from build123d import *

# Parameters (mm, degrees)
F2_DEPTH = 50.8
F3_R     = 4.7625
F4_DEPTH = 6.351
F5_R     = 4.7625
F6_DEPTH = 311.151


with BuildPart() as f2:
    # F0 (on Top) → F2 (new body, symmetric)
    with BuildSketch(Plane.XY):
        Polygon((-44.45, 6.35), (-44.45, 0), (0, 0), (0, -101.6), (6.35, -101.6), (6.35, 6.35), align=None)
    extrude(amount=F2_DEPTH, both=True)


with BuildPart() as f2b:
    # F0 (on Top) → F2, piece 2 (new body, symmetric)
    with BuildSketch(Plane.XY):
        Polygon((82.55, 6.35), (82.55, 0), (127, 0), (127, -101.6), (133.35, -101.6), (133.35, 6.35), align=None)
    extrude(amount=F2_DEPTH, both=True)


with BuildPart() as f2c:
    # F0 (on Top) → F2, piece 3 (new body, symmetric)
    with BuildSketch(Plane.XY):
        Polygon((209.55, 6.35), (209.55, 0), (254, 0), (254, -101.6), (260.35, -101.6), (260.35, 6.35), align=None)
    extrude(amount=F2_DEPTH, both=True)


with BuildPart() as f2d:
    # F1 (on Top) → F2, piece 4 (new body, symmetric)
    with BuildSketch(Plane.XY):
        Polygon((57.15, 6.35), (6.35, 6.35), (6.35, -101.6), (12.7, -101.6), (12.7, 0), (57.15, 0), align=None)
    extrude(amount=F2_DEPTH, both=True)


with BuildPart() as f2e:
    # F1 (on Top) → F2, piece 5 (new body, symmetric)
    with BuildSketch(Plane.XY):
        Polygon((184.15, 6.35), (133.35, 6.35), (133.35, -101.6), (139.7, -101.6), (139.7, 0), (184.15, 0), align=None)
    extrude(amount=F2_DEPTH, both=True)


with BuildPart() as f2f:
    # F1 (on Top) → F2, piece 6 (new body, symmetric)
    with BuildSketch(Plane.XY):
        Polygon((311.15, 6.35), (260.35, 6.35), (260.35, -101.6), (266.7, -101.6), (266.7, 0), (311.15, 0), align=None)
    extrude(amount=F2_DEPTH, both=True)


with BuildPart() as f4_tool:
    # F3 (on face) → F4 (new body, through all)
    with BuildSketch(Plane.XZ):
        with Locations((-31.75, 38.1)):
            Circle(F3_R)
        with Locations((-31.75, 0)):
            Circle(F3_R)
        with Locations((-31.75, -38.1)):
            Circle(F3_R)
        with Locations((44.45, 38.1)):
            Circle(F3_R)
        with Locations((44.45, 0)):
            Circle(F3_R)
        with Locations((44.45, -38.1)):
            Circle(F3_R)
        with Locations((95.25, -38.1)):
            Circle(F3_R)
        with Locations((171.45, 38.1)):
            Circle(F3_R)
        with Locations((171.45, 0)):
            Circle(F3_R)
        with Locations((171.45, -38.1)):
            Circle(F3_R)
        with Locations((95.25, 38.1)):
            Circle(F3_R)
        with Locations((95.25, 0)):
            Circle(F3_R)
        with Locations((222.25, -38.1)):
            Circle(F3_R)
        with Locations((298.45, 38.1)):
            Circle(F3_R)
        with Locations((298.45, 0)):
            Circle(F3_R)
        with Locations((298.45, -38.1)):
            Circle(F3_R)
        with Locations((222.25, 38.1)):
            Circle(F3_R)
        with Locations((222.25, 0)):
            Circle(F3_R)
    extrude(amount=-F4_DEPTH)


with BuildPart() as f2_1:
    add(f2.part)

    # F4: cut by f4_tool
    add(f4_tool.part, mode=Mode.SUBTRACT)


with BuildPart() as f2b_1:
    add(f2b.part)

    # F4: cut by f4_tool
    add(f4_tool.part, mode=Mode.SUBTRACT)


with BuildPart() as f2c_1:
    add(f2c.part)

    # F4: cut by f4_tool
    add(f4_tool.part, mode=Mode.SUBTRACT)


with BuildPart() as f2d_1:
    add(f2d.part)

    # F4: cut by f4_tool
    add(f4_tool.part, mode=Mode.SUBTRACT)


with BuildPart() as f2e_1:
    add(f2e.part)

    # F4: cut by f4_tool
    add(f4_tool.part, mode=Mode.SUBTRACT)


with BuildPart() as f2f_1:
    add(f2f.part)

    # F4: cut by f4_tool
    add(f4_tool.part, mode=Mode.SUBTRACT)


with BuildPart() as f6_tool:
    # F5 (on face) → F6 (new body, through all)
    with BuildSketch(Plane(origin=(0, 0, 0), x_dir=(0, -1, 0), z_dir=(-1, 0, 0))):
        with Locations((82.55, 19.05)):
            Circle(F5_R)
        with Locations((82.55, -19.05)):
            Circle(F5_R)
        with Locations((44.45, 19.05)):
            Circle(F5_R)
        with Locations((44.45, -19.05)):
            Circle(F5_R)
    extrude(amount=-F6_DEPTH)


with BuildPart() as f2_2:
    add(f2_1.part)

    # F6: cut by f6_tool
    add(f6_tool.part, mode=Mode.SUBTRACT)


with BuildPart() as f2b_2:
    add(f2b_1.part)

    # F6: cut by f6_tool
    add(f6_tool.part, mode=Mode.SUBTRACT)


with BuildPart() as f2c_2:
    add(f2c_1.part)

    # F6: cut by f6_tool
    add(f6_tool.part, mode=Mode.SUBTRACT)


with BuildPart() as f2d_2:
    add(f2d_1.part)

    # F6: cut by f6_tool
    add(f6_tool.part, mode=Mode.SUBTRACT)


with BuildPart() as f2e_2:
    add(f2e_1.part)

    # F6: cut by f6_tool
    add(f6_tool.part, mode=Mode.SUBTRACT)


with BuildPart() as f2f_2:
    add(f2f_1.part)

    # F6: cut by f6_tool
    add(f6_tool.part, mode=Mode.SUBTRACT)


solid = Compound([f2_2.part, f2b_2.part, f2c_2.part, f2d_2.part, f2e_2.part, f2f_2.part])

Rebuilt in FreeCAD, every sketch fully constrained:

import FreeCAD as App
import Part
import Sketcher
from FreeCAD import Vector
Q = App.Units.Quantity

doc = App.newDocument("Part")
body = doc.addObject("PartDesign::Body", "Body")

# Sketch on XY plane
sketch1 = body.newObject("Sketcher::SketchObject", "Sketch")
sketch1.AttachmentSupport = (doc.getObject("XY_Plane"), [""])
sketch1.MapMode = "FlatFace"
sketch1.addGeometry(Part.LineSegment(Vector(-44.45, 6.35, 0), Vector(-44.45, 0, 0)), False)
sketch1.addGeometry(Part.LineSegment(Vector(-44.45, 0, 0), Vector(0, 0, 0)), False)
sketch1.addGeometry(Part.LineSegment(Vector(0, 0, 0), Vector(0, -101.6, 0)), False)
sketch1.addGeometry(Part.LineSegment(Vector(0, -101.6, 0), Vector(6.35, -101.6, 0)), False)
sketch1.addGeometry(Part.LineSegment(Vector(6.35, -101.6, 0), Vector(6.35, 6.35, 0)), False)
sketch1.addGeometry(Part.LineSegment(Vector(6.35, 6.35, 0), Vector(-44.45, 6.35, 0)), False)
sketch1.addConstraint(Sketcher.Constraint("Coincident", 0, 2, 1, 1))
sketch1.addConstraint(Sketcher.Constraint("Coincident", 1, 2, 2, 1))
sketch1.addConstraint(Sketcher.Constraint("Coincident", 2, 2, 3, 1))
sketch1.addConstraint(Sketcher.Constraint("Coincident", 3, 2, 4, 1))
sketch1.addConstraint(Sketcher.Constraint("Coincident", 4, 2, 5, 1))
sketch1.addConstraint(Sketcher.Constraint("Coincident", 5, 2, 0, 1))
sketch1.addConstraint(Sketcher.Constraint("Vertical", 0))
sketch1.addConstraint(Sketcher.Constraint("Horizontal", 1))
sketch1.addConstraint(Sketcher.Constraint("Vertical", 2))
sketch1.addConstraint(Sketcher.Constraint("Horizontal", 3))
sketch1.addConstraint(Sketcher.Constraint("Vertical", 4))
sketch1.addConstraint(Sketcher.Constraint("Horizontal", 5))
sketch1.addConstraint(Sketcher.Constraint("Coincident", 1, 2, -1, 1))
sketch1.addConstraint(Sketcher.Constraint("Equal", 3, 0))
sketch1.addConstraint(Sketcher.Constraint("DistanceX", 5, 2, 5, 1, Q("2 in")))
sketch1.addConstraint(Sketcher.Constraint("DistanceY", 2, 2, 2, 1, Q("4 in")))
sketch1.addConstraint(Sketcher.Constraint("DistanceX", 1, 1, 1, 2, Q("1.75 in")))
pad1 = body.newObject("PartDesign::Pad", "Pad")
pad1.Profile = sketch1
pad1.Length = Q("4 in")
pad1.Midplane = True
body2 = doc.addObject("PartDesign::Body", "Body001")

# Sketch on XY plane
sketch2 = body2.newObject("Sketcher::SketchObject", "Sketch001")
sketch2.AttachmentSupport = (doc.getObject("XY_Plane001"), [""])
sketch2.MapMode = "FlatFace"
sketch2.addGeometry(Part.LineSegment(Vector(82.55, 6.35, 0), Vector(82.55, 0, 0)), False)
sketch2.addGeometry(Part.LineSegment(Vector(82.55, 0, 0), Vector(127, 0, 0)), False)
sketch2.addGeometry(Part.LineSegment(Vector(127, 0, 0), Vector(127, -101.6, 0)), False)
sketch2.addGeometry(Part.LineSegment(Vector(127, -101.6, 0), Vector(133.35, -101.6, 0)), False)
sketch2.addGeometry(Part.LineSegment(Vector(133.35, -101.6, 0), Vector(133.35, 6.35, 0)), False)
sketch2.addGeometry(Part.LineSegment(Vector(133.35, 6.35, 0), Vector(82.55, 6.35, 0)), False)
sketch2.addConstraint(Sketcher.Constraint("Coincident", 0, 2, 1, 1))
sketch2.addConstraint(Sketcher.Constraint("Coincident", 1, 2, 2, 1))
sketch2.addConstraint(Sketcher.Constraint("Coincident", 2, 2, 3, 1))
sketch2.addConstraint(Sketcher.Constraint("Coincident", 3, 2, 4, 1))
sketch2.addConstraint(Sketcher.Constraint("Coincident", 4, 2, 5, 1))
sketch2.addConstraint(Sketcher.Constraint("Coincident", 5, 2, 0, 1))
sketch2.addConstraint(Sketcher.Constraint("Vertical", 0))
sketch2.addConstraint(Sketcher.Constraint("Horizontal", 1))
sketch2.addConstraint(Sketcher.Constraint("Vertical", 2))
sketch2.addConstraint(Sketcher.Constraint("Horizontal", 3))
sketch2.addConstraint(Sketcher.Constraint("Vertical", 4))
sketch2.addConstraint(Sketcher.Constraint("Horizontal", 5))
sketch2.addConstraint(Sketcher.Constraint("PointOnObject", 0, 2, -1))
sketch2.addConstraint(Sketcher.Constraint("Equal", 3, 0))
sketch2.addConstraint(Sketcher.Constraint("DistanceX", 5, 2, 5, 1, Q("2 in")))
sketch2.addConstraint(Sketcher.Constraint("DistanceY", 2, 2, 2, 1, Q("4 in")))
sketch2.addConstraint(Sketcher.Constraint("DistanceX", -1, 1, 1, 2, Q("5 in")))
sketch2.addConstraint(Sketcher.Constraint("DistanceX", 1, 1, 1, 2, Q("1.75 in")))
pad2 = body2.newObject("PartDesign::Pad", "Pad001")
pad2.Profile = sketch2
pad2.Length = Q("4 in")
pad2.Midplane = True
body3 = doc.addObject("PartDesign::Body", "Body002")

# Sketch on XY plane
sketch3 = body3.newObject("Sketcher::SketchObject", "Sketch002")
sketch3.AttachmentSupport = (doc.getObject("XY_Plane002"), [""])
sketch3.MapMode = "FlatFace"
sketch3.addGeometry(Part.LineSegment(Vector(209.55, 6.35, 0), Vector(209.55, 0, 0)), False)
sketch3.addGeometry(Part.LineSegment(Vector(209.55, 0, 0), Vector(254, 0, 0)), False)
sketch3.addGeometry(Part.LineSegment(Vector(254, 0, 0), Vector(254, -101.6, 0)), False)
sketch3.addGeometry(Part.LineSegment(Vector(254, -101.6, 0), Vector(260.35, -101.6, 0)), False)
sketch3.addGeometry(Part.LineSegment(Vector(260.35, -101.6, 0), Vector(260.35, 6.35, 0)), False)
sketch3.addGeometry(Part.LineSegment(Vector(260.35, 6.35, 0), Vector(209.55, 6.35, 0)), False)
sketch3.addConstraint(Sketcher.Constraint("Coincident", 0, 2, 1, 1))
sketch3.addConstraint(Sketcher.Constraint("Coincident", 1, 2, 2, 1))
sketch3.addConstraint(Sketcher.Constraint("Coincident", 2, 2, 3, 1))
sketch3.addConstraint(Sketcher.Constraint("Coincident", 3, 2, 4, 1))
sketch3.addConstraint(Sketcher.Constraint("Coincident", 4, 2, 5, 1))
sketch3.addConstraint(Sketcher.Constraint("Coincident", 5, 2, 0, 1))
sketch3.addConstraint(Sketcher.Constraint("Vertical", 0))
sketch3.addConstraint(Sketcher.Constraint("Horizontal", 1))
sketch3.addConstraint(Sketcher.Constraint("Vertical", 2))
sketch3.addConstraint(Sketcher.Constraint("Horizontal", 3))
sketch3.addConstraint(Sketcher.Constraint("Vertical", 4))
sketch3.addConstraint(Sketcher.Constraint("Horizontal", 5))
sketch3.addConstraint(Sketcher.Constraint("PointOnObject", 0, 2, -1))
sketch3.addConstraint(Sketcher.Constraint("Equal", 3, 0))
sketch3.addConstraint(Sketcher.Constraint("DistanceX", 5, 2, 5, 1, Q("2 in")))
sketch3.addConstraint(Sketcher.Constraint("DistanceY", 2, 2, 2, 1, Q("4 in")))
sketch3.addConstraint(Sketcher.Constraint("DistanceX", -1, 1, 1, 2, Q("10 in")))
sketch3.addConstraint(Sketcher.Constraint("DistanceX", 1, 1, 1, 2, Q("1.75 in")))
pad3 = body3.newObject("PartDesign::Pad", "Pad002")
pad3.Profile = sketch3
pad3.Length = Q("4 in")
pad3.Midplane = True
body4 = doc.addObject("PartDesign::Body", "Body003")

# Sketch on XY plane
sketch4 = body4.newObject("Sketcher::SketchObject", "Sketch003")
sketch4.AttachmentSupport = (doc.getObject("XY_Plane003"), [""])
sketch4.MapMode = "FlatFace"
sketch4.addGeometry(Part.LineSegment(Vector(57.15, 6.35, 0), Vector(6.35, 6.35, 0)), False)
sketch4.addGeometry(Part.LineSegment(Vector(6.35, 6.35, 0), Vector(6.35, -101.6, 0)), False)
sketch4.addGeometry(Part.LineSegment(Vector(6.35, -101.6, 0), Vector(12.7, -101.6, 0)), False)
sketch4.addGeometry(Part.LineSegment(Vector(12.7, -101.6, 0), Vector(12.7, 0, 0)), False)
sketch4.addGeometry(Part.LineSegment(Vector(12.7, 0, 0), Vector(57.15, 0, 0)), False)
sketch4.addGeometry(Part.LineSegment(Vector(57.15, 0, 0), Vector(57.15, 6.35, 0)), False)
sketch4.addConstraint(Sketcher.Constraint("Coincident", 0, 2, 1, 1))
sketch4.addConstraint(Sketcher.Constraint("Coincident", 1, 2, 2, 1))
sketch4.addConstraint(Sketcher.Constraint("Coincident", 2, 2, 3, 1))
sketch4.addConstraint(Sketcher.Constraint("Coincident", 3, 2, 4, 1))
sketch4.addConstraint(Sketcher.Constraint("Coincident", 4, 2, 5, 1))
sketch4.addConstraint(Sketcher.Constraint("Coincident", 5, 2, 0, 1))
sketch4.addConstraint(Sketcher.Constraint("Horizontal", 0))
sketch4.addConstraint(Sketcher.Constraint("Vertical", 1))
sketch4.addConstraint(Sketcher.Constraint("Horizontal", 2))
sketch4.addConstraint(Sketcher.Constraint("Vertical", 3))
sketch4.addConstraint(Sketcher.Constraint("Horizontal", 4))
sketch4.addConstraint(Sketcher.Constraint("Vertical", 5))
sketch4.addConstraint(Sketcher.Constraint("PointOnObject", 3, 2, -1))
sketch4.addConstraint(Sketcher.Constraint("Equal", 2, 5))
sketch4.addConstraint(Sketcher.Constraint("DistanceX", 0, 2, 0, 1, Q("2 in")))
sketch4.addConstraint(Sketcher.Constraint("DistanceY", 3, 1, 3, 2, Q("4 in")))
sketch4.addConstraint(Sketcher.Constraint("DistanceX", 2, 1, 2, 2, Q("0.25 in")))
sketch4.addConstraint(Sketcher.Constraint("DistanceX", -1, 1, 2, 2, Q("0.5 in")))
pad4 = body4.newObject("PartDesign::Pad", "Pad003")
pad4.Profile = sketch4
pad4.Length = Q("4 in")
pad4.Midplane = True
body5 = doc.addObject("PartDesign::Body", "Body004")

# Sketch on XY plane
sketch5 = body5.newObject("Sketcher::SketchObject", "Sketch004")
sketch5.AttachmentSupport = (doc.getObject("XY_Plane004"), [""])
sketch5.MapMode = "FlatFace"
sketch5.addGeometry(Part.LineSegment(Vector(184.15, 6.35, 0), Vector(133.35, 6.35, 0)), False)
sketch5.addGeometry(Part.LineSegment(Vector(133.35, 6.35, 0), Vector(133.35, -101.6, 0)), False)
sketch5.addGeometry(Part.LineSegment(Vector(133.35, -101.6, 0), Vector(139.7, -101.6, 0)), False)
sketch5.addGeometry(Part.LineSegment(Vector(139.7, -101.6, 0), Vector(139.7, 0, 0)), False)
sketch5.addGeometry(Part.LineSegment(Vector(139.7, 0, 0), Vector(184.15, 0, 0)), False)
sketch5.addGeometry(Part.LineSegment(Vector(184.15, 0, 0), Vector(184.15, 6.35, 0)), False)
sketch5.addConstraint(Sketcher.Constraint("Coincident", 0, 2, 1, 1))
sketch5.addConstraint(Sketcher.Constraint("Coincident", 1, 2, 2, 1))
sketch5.addConstraint(Sketcher.Constraint("Coincident", 2, 2, 3, 1))
sketch5.addConstraint(Sketcher.Constraint("Coincident", 3, 2, 4, 1))
sketch5.addConstraint(Sketcher.Constraint("Coincident", 4, 2, 5, 1))
sketch5.addConstraint(Sketcher.Constraint("Coincident", 5, 2, 0, 1))
sketch5.addConstraint(Sketcher.Constraint("Horizontal", 0))
sketch5.addConstraint(Sketcher.Constraint("Vertical", 1))
sketch5.addConstraint(Sketcher.Constraint("Horizontal", 2))
sketch5.addConstraint(Sketcher.Constraint("Vertical", 3))
sketch5.addConstraint(Sketcher.Constraint("Horizontal", 4))
sketch5.addConstraint(Sketcher.Constraint("Vertical", 5))
sketch5.addConstraint(Sketcher.Constraint("PointOnObject", 3, 2, -1))
sketch5.addConstraint(Sketcher.Constraint("Equal", 2, 5))
sketch5.addConstraint(Sketcher.Constraint("DistanceX", 0, 2, 0, 1, Q("2 in")))
sketch5.addConstraint(Sketcher.Constraint("DistanceY", 3, 1, 3, 2, Q("4 in")))
sketch5.addConstraint(Sketcher.Constraint("DistanceX", 2, 1, 2, 2, Q("0.25 in")))
sketch5.addConstraint(Sketcher.Constraint("DistanceX", -1, 1, 2, 2, Q("5.5 in")))
pad5 = body5.newObject("PartDesign::Pad", "Pad004")
pad5.Profile = sketch5
pad5.Length = Q("4 in")
pad5.Midplane = True
body6 = doc.addObject("PartDesign::Body", "Body005")

# Sketch on XY plane
sketch6 = body6.newObject("Sketcher::SketchObject", "Sketch005")
sketch6.AttachmentSupport = (doc.getObject("XY_Plane005"), [""])
sketch6.MapMode = "FlatFace"
sketch6.addGeometry(Part.LineSegment(Vector(311.15, 6.35, 0), Vector(260.35, 6.35, 0)), False)
sketch6.addGeometry(Part.LineSegment(Vector(260.35, 6.35, 0), Vector(260.35, -101.6, 0)), False)
sketch6.addGeometry(Part.LineSegment(Vector(260.35, -101.6, 0), Vector(266.7, -101.6, 0)), False)
sketch6.addGeometry(Part.LineSegment(Vector(266.7, -101.6, 0), Vector(266.7, 0, 0)), False)
sketch6.addGeometry(Part.LineSegment(Vector(266.7, 0, 0), Vector(311.15, 0, 0)), False)
sketch6.addGeometry(Part.LineSegment(Vector(311.15, 0, 0), Vector(311.15, 6.35, 0)), False)
sketch6.addConstraint(Sketcher.Constraint("Coincident", 0, 2, 1, 1))
sketch6.addConstraint(Sketcher.Constraint("Coincident", 1, 2, 2, 1))
sketch6.addConstraint(Sketcher.Constraint("Coincident", 2, 2, 3, 1))
sketch6.addConstraint(Sketcher.Constraint("Coincident", 3, 2, 4, 1))
sketch6.addConstraint(Sketcher.Constraint("Coincident", 4, 2, 5, 1))
sketch6.addConstraint(Sketcher.Constraint("Coincident", 5, 2, 0, 1))
sketch6.addConstraint(Sketcher.Constraint("Horizontal", 0))
sketch6.addConstraint(Sketcher.Constraint("Vertical", 1))
sketch6.addConstraint(Sketcher.Constraint("Horizontal", 2))
sketch6.addConstraint(Sketcher.Constraint("Vertical", 3))
sketch6.addConstraint(Sketcher.Constraint("Horizontal", 4))
sketch6.addConstraint(Sketcher.Constraint("Vertical", 5))
sketch6.addConstraint(Sketcher.Constraint("PointOnObject", 3, 2, -1))
sketch6.addConstraint(Sketcher.Constraint("Equal", 2, 5))
sketch6.addConstraint(Sketcher.Constraint("DistanceX", 0, 2, 0, 1, Q("2 in")))
sketch6.addConstraint(Sketcher.Constraint("DistanceY", 3, 1, 3, 2, Q("4 in")))
sketch6.addConstraint(Sketcher.Constraint("DistanceX", 2, 1, 2, 2, Q("0.25 in")))
sketch6.addConstraint(Sketcher.Constraint("DistanceX", -1, 1, 2, 2, Q("10.5 in")))
pad6 = body6.newObject("PartDesign::Pad", "Pad005")
pad6.Profile = sketch6
pad6.Length = Q("4 in")
pad6.Midplane = True
body7 = doc.addObject("PartDesign::Body", "Body006")
body7.AllowCompound = True

# Sketch on XZ plane
sketch7 = body7.newObject("Sketcher::SketchObject", "Sketch006")
sketch7.AttachmentSupport = (doc.getObject("XZ_Plane006"), [""])
sketch7.MapMode = "FlatFace"
sketch7.addGeometry(Part.Circle(Vector(-31.75, 38.1, 0), Vector(0, 0, 1), 4.7625), False)
sketch7.addGeometry(Part.Circle(Vector(-31.75, 0, 0), Vector(0, 0, 1), 4.7625), False)
sketch7.addGeometry(Part.Circle(Vector(-31.75, -38.1, 0), Vector(0, 0, 1), 4.7625), False)
sketch7.addGeometry(Part.Circle(Vector(44.45, 38.1, 0), Vector(0, 0, 1), 4.7625), False)
sketch7.addGeometry(Part.Circle(Vector(44.45, 0, 0), Vector(0, 0, 1), 4.7625), False)
sketch7.addGeometry(Part.Circle(Vector(44.45, -38.1, 0), Vector(0, 0, 1), 4.7625), False)
sketch7.addGeometry(Part.Circle(Vector(95.25, -38.1, 0), Vector(0, 0, 1), 4.7625), False)
sketch7.addGeometry(Part.Circle(Vector(171.45, 38.1, 0), Vector(0, 0, 1), 4.7625), False)
sketch7.addGeometry(Part.Circle(Vector(171.45, 0, 0), Vector(0, 0, 1), 4.7625), False)
sketch7.addGeometry(Part.Circle(Vector(171.45, -38.1, 0), Vector(0, 0, 1), 4.7625), False)
sketch7.addGeometry(Part.Circle(Vector(95.25, 38.1, 0), Vector(0, 0, 1), 4.7625), False)
sketch7.addGeometry(Part.Circle(Vector(95.25, 0, 0), Vector(0, 0, 1), 4.7625), False)
sketch7.addGeometry(Part.Circle(Vector(222.25, -38.1, 0), Vector(0, 0, 1), 4.7625), False)
sketch7.addGeometry(Part.Circle(Vector(298.45, 38.1, 0), Vector(0, 0, 1), 4.7625), False)
sketch7.addGeometry(Part.Circle(Vector(298.45, 0, 0), Vector(0, 0, 1), 4.7625), False)
sketch7.addGeometry(Part.Circle(Vector(298.45, -38.1, 0), Vector(0, 0, 1), 4.7625), False)
sketch7.addGeometry(Part.Circle(Vector(222.25, 38.1, 0), Vector(0, 0, 1), 4.7625), False)
sketch7.addGeometry(Part.Circle(Vector(222.25, 0, 0), Vector(0, 0, 1), 4.7625), False)
sketch7.addConstraint(Sketcher.Constraint("Equal", 0, 1))
sketch7.addConstraint(Sketcher.Constraint("Equal", 1, 2))
sketch7.addConstraint(Sketcher.Constraint("Equal", 2, 3))
sketch7.addConstraint(Sketcher.Constraint("Equal", 3, 4))
sketch7.addConstraint(Sketcher.Constraint("Equal", 4, 5))
sketch7.addConstraint(Sketcher.Constraint("Equal", 5, 6))
sketch7.addConstraint(Sketcher.Constraint("Equal", 6, 7))
sketch7.addConstraint(Sketcher.Constraint("Equal", 7, 8))
sketch7.addConstraint(Sketcher.Constraint("Equal", 8, 9))
sketch7.addConstraint(Sketcher.Constraint("Equal", 9, 10))
sketch7.addConstraint(Sketcher.Constraint("Equal", 10, 11))
sketch7.addConstraint(Sketcher.Constraint("Equal", 11, 12))
sketch7.addConstraint(Sketcher.Constraint("Equal", 12, 13))
sketch7.addConstraint(Sketcher.Constraint("Equal", 13, 14))
sketch7.addConstraint(Sketcher.Constraint("Equal", 14, 15))
sketch7.addConstraint(Sketcher.Constraint("Equal", 15, 16))
sketch7.addConstraint(Sketcher.Constraint("Equal", 16, 17))
sketch7.addConstraint(Sketcher.Constraint("Symmetric", 0, 3, 2, 3, -1))
sketch7.addConstraint(Sketcher.Constraint("Symmetric", 3, 3, 5, 3, -1))
sketch7.addConstraint(Sketcher.Constraint("Symmetric", 7, 3, 9, 3, -1))
sketch7.addConstraint(Sketcher.Constraint("Symmetric", 6, 3, 10, 3, -1))
sketch7.addConstraint(Sketcher.Constraint("Symmetric", 13, 3, 15, 3, -1))
sketch7.addConstraint(Sketcher.Constraint("Symmetric", 12, 3, 16, 3, -1))
sketch7.addConstraint(Sketcher.Constraint("PointOnObject", 1, 3, -1))
sketch7.addConstraint(Sketcher.Constraint("PointOnObject", 4, 3, -1))
sketch7.addConstraint(Sketcher.Constraint("PointOnObject", 8, 3, -1))
sketch7.addConstraint(Sketcher.Constraint("PointOnObject", 11, 3, -1))
sketch7.addConstraint(Sketcher.Constraint("PointOnObject", 14, 3, -1))
sketch7.addConstraint(Sketcher.Constraint("PointOnObject", 17, 3, -1))
sketch7.addConstraint(Sketcher.Constraint("Horizontal", 0, 3, 3, 3))
sketch7.addConstraint(Sketcher.Constraint("Horizontal", 5, 3, 6, 3))
sketch7.addConstraint(Sketcher.Constraint("Horizontal", 3, 3, 7, 3))
sketch7.addConstraint(Sketcher.Constraint("Horizontal", 9, 3, 12, 3))
sketch7.addConstraint(Sketcher.Constraint("Horizontal", 10, 3, 13, 3))
sketch7.addConstraint(Sketcher.Constraint("Vertical", 0, 3, 1, 3))
sketch7.addConstraint(Sketcher.Constraint("Vertical", 3, 3, 4, 3))
sketch7.addConstraint(Sketcher.Constraint("Vertical", 7, 3, 8, 3))
sketch7.addConstraint(Sketcher.Constraint("Vertical", 10, 3, 11, 3))
sketch7.addConstraint(Sketcher.Constraint("Vertical", 13, 3, 14, 3))
sketch7.addConstraint(Sketcher.Constraint("Vertical", 16, 3, 17, 3))
sketch7.addConstraint(Sketcher.Constraint("Diameter", 0, Q("0.375 in")))
sketch7.addConstraint(Sketcher.Constraint("DistanceY", 2, 3, 0, 3, Q("3 in")))
sketch7.addConstraint(Sketcher.Constraint("DistanceX", 0, 3, 3, 3, Q("3 in")))
sketch7.addConstraint(Sketcher.Constraint("DistanceX", 5, 3, 6, 3, Q("2 in")))
sketch7.addConstraint(Sketcher.Constraint("DistanceX", 6, 3, 7, 3, Q("3 in")))
sketch7.addConstraint(Sketcher.Constraint("DistanceX", 9, 3, 12, 3, Q("2 in")))
sketch7.addConstraint(Sketcher.Constraint("DistanceX", 12, 3, 13, 3, Q("3 in")))
sketch7.addConstraint(Sketcher.Constraint("DistanceX", 0, 3, -1, 1, Q("1.25 in")))
pad7 = body7.newObject("PartDesign::Pad", "Pad006")
pad7.Profile = sketch7
pad7.Length = 6.351
pad7.Reversed = True
doc.recompute()

body8 = doc.addObject("PartDesign::Body", "Body007")
body8.BaseFeature = body7
boolean = body.newObject("PartDesign::Boolean", "Boolean")
boolean.Type = "Cut"
boolean.addObjects([body8])
doc.recompute()

body9 = doc.addObject("PartDesign::Body", "Body008")
body9.BaseFeature = body7
boolean2 = body2.newObject("PartDesign::Boolean", "Boolean001")
boolean2.Type = "Cut"
boolean2.addObjects([body9])
doc.recompute()

body10 = doc.addObject("PartDesign::Body", "Body009")
body10.BaseFeature = body7
boolean3 = body3.newObject("PartDesign::Boolean", "Boolean002")
boolean3.Type = "Cut"
boolean3.addObjects([body10])
doc.recompute()

body11 = doc.addObject("PartDesign::Body", "Body010")
body11.BaseFeature = body7
boolean4 = body4.newObject("PartDesign::Boolean", "Boolean003")
boolean4.Type = "Cut"
boolean4.addObjects([body11])
doc.recompute()

body12 = doc.addObject("PartDesign::Body", "Body011")
body12.BaseFeature = body7
boolean5 = body5.newObject("PartDesign::Boolean", "Boolean004")
boolean5.Type = "Cut"
boolean5.addObjects([body12])
doc.recompute()

boolean6 = body6.newObject("PartDesign::Boolean", "Boolean005")
boolean6.Type = "Cut"
boolean6.addObjects([body7])
body13 = doc.addObject("PartDesign::Body", "Body012")
body13.AllowCompound = True

# Sketch on YZ plane
sketch8 = body13.newObject("Sketcher::SketchObject", "Sketch007")
sketch8.AttachmentSupport = (doc.getObject("YZ_Plane012"), [""])
sketch8.MapMode = "FlatFace"
sketch8.addGeometry(Part.Circle(Vector(-82.55, 19.05, 0), Vector(0, 0, 1), 4.7625), False)
sketch8.addGeometry(Part.Circle(Vector(-82.55, -19.05, 0), Vector(0, 0, 1), 4.7625), False)
sketch8.addGeometry(Part.Circle(Vector(-44.45, 19.05, 0), Vector(0, 0, 1), 4.7625), False)
sketch8.addGeometry(Part.Circle(Vector(-44.45, -19.05, 0), Vector(0, 0, 1), 4.7625), False)
sketch8.addConstraint(Sketcher.Constraint("Equal", 0, 1))
sketch8.addConstraint(Sketcher.Constraint("Equal", 1, 2))
sketch8.addConstraint(Sketcher.Constraint("Equal", 2, 3))
sketch8.addConstraint(Sketcher.Constraint("Symmetric", 0, 3, 1, 3, -1))
sketch8.addConstraint(Sketcher.Constraint("Symmetric", 2, 3, 3, 3, -1))
sketch8.addConstraint(Sketcher.Constraint("Horizontal", 0, 3, 2, 3))
sketch8.addConstraint(Sketcher.Constraint("Diameter", 0, Q("0.375 in")))
sketch8.addConstraint(Sketcher.Constraint("DistanceY", 1, 3, 0, 3, Q("1.5 in")))
sketch8.addConstraint(Sketcher.Constraint("DistanceX", 0, 3, 2, 3, Q("1.5 in")))
sketch8.addConstraint(Sketcher.Constraint("DistanceX", 0, 3, -1, 1, Q("3.25 in")))
pad8 = body13.newObject("PartDesign::Pad", "Pad007")
pad8.Profile = sketch8
pad8.Length = 311.151
doc.recompute()

body14 = doc.addObject("PartDesign::Body", "Body013")
body14.BaseFeature = body13
boolean7 = body.newObject("PartDesign::Boolean", "Boolean006")
boolean7.Type = "Cut"
boolean7.addObjects([body14])
doc.recompute()

body15 = doc.addObject("PartDesign::Body", "Body014")
body15.BaseFeature = body13
boolean8 = body2.newObject("PartDesign::Boolean", "Boolean007")
boolean8.Type = "Cut"
boolean8.addObjects([body15])
doc.recompute()

body16 = doc.addObject("PartDesign::Body", "Body015")
body16.BaseFeature = body13
boolean9 = body3.newObject("PartDesign::Boolean", "Boolean008")
boolean9.Type = "Cut"
boolean9.addObjects([body16])
doc.recompute()

body17 = doc.addObject("PartDesign::Body", "Body016")
body17.BaseFeature = body13
boolean10 = body4.newObject("PartDesign::Boolean", "Boolean009")
boolean10.Type = "Cut"
boolean10.addObjects([body17])
doc.recompute()

body18 = doc.addObject("PartDesign::Body", "Body017")
body18.BaseFeature = body13
boolean11 = body5.newObject("PartDesign::Boolean", "Boolean010")
boolean11.Type = "Cut"
boolean11.addObjects([body18])
doc.recompute()

boolean12 = body6.newObject("PartDesign::Boolean", "Boolean011")
boolean12.Type = "Cut"
boolean12.addObjects([body13])

doc.recompute()
